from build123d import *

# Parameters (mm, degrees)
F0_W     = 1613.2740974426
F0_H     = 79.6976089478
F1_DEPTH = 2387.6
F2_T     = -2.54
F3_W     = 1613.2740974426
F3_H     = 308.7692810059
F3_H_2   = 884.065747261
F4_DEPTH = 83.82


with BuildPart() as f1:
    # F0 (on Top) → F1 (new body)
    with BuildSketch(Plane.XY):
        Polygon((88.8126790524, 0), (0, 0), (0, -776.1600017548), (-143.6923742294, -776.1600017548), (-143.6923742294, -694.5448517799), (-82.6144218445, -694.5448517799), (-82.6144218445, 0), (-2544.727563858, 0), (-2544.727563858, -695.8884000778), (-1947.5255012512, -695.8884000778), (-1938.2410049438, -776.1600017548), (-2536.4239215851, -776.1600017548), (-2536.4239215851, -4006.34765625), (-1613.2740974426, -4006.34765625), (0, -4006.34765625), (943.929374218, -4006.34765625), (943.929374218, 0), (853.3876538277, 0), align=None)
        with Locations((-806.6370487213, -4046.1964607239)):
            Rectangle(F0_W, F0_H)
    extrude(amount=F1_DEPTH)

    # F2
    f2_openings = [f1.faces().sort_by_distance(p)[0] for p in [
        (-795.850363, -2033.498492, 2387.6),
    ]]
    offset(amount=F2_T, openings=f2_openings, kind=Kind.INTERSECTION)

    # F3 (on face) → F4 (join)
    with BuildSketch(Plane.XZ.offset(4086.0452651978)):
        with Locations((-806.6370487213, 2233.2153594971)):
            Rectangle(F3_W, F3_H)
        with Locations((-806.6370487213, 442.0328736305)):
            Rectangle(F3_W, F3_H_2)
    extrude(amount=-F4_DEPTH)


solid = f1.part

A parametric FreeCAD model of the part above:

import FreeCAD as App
import Part
import Sketcher
Q = App.Units.Quantity


def faces_at(feature, points):
    """Names of the faces that lie closest to the given points."""
    faces = feature.Shape.Faces
    near = lambda p: min(range(len(faces)), key=lambda i: faces[i].distToShape(Part.Vertex(*p))[0])
    return sorted({f"Face{near(p) + 1}" for p in points})

doc = App.newDocument("Part")
body = doc.addObject("PartDesign::Body", "Body")

sketch1 = body.newObject("Sketcher::SketchObject", "Sketch")
sketch1.AttachmentSupport = (doc.getObject("XY_Plane"), [""])
sketch1.MapMode = "FlatFace"
sketch1.addGeometry([
    Part.LineSegment(App.Vector(0, 0, 0), App.Vector(0, -776.160002, 0)),
    Part.LineSegment(App.Vector(0, -776.160002, 0), App.Vector(-143.692374, -776.160002, 0)),
    Part.LineSegment(App.Vector(-143.692374, -776.160002, 0), App.Vector(-143.692374, -694.544852, 0)),
    Part.LineSegment(App.Vector(-143.692374, -694.544852, 0), App.Vector(-82.614422, -694.544852, 0)),
    Part.LineSegment(App.Vector(-82.614422, -694.544852, 0), App.Vector(-82.614422, 0, 0)),
    Part.LineSegment(App.Vector(-82.614422, 0, 0), App.Vector(-2544.727564, 0, 0)),
    Part.LineSegment(App.Vector(-2544.727564, 0, 0), App.Vector(-2544.727564, -695.8884, 0)),
    Part.LineSegment(App.Vector(-2544.727564, -695.8884, 0), App.Vector(-1947.525501, -695.8884, 0)),
    Part.LineSegment(App.Vector(-1947.525501, -695.8884, 0), App.Vector(-1938.241005, -776.160002, 0)),
    Part.LineSegment(App.Vector(-1938.241005, -776.160002, 0), App.Vector(-2536.423922, -776.160002, 0)),
    Part.LineSegment(App.Vector(-2536.423922, -776.160002, 0), App.Vector(-2536.423922, -4006.347656, 0)),
    Part.LineSegment(App.Vector(-2536.423922, -4006.347656, 0), App.Vector(-1613.274097, -4006.347656, 0)),
    Part.LineSegment(App.Vector(-1613.274097, -4006.347656, 0), App.Vector(-1613.274097, -4086.045265, 0)),
    Part.LineSegment(App.Vector(-1613.274097, -4086.045265, 0), App.Vector(0, -4086.045265, 0)),
    Part.LineSegment(App.Vector(0, -4086.045265, 0), App.Vector(0, -4006.347656, 0)),
    Part.LineSegment(App.Vector(0, -4006.347656, 0), App.Vector(943.929374, -4006.347656, 0)),
    Part.LineSegment(App.Vector(943.929374, -4006.347656, 0), App.Vector(943.929374, 0, 0)),
    Part.LineSegment(App.Vector(943.929374, 0, 0), App.Vector(0, 0, 0)),
], False)
sketch1.addConstraint([
    Sketcher.Constraint("Coincident", 0, 2, 1, 1),
    Sketcher.Constraint("Coincident", 1, 2, 2, 1),
    Sketcher.Constraint("Coincident", 2, 2, 3, 1),
    Sketcher.Constraint("Coincident", 3, 2, 4, 1),
    Sketcher.Constraint("Coincident", 4, 2, 5, 1),
    Sketcher.Constraint("Coincident", 5, 2, 6, 1),
    Sketcher.Constraint("Coincident", 6, 2, 7, 1),
    Sketcher.Constraint("Coincident", 7, 2, 8, 1),
    Sketcher.Constraint("Coincident", 8, 2, 9, 1),
    Sketcher.Constraint("Coincident", 9, 2, 10, 1),
    Sketcher.Constraint("Coincident", 10, 2, 11, 1),
    Sketcher.Constraint("Coincident", 11, 2, 12, 1),
    Sketcher.Constraint("Coincident", 12, 2, 13, 1),
    Sketcher.Constraint("Coincident", 13, 2, 14, 1),
    Sketcher.Constraint("Coincident", 14, 2, 15, 1),
    Sketcher.Constraint("Coincident", 15, 2, 16, 1),
    Sketcher.Constraint("Coincident", 16, 2, 17, 1),
    Sketcher.Constraint("Coincident", 17, 2, 0, 1),
    Sketcher.Constraint("Vertical", 0),
    Sketcher.Constraint("Horizontal", 1),
    Sketcher.Constraint("Vertical", 2),
    Sketcher.Constraint("Horizontal", 3),
    Sketcher.Constraint("Vertical", 4),
    Sketcher.Constraint("Horizontal", 5),
    Sketcher.Constraint("Vertical", 6),
    Sketcher.Constraint("Horizontal", 7),
    Sketcher.Constraint("Horizontal", 9),
    Sketcher.Constraint("Vertical", 10),
    Sketcher.Constraint("Horizontal", 11),
    Sketcher.Constraint("Vertical", 12),
    Sketcher.Constraint("Horizontal", 13),
    Sketcher.Constraint("Vertical", 14),
    Sketcher.Constraint("Horizontal", 15),
    Sketcher.Constraint("Vertical", 16),
    Sketcher.Constraint("Horizontal", 17),
    Sketcher.Constraint("Coincident", 17, 2, -1, 1),
    Sketcher.Constraint("PointOnObject", 4, 2, -1),
    Sketcher.Constraint("PointOnObject", 13, 2, -2),
    Sketcher.Constraint("Horizontal", 1, 2, 8, 2),
    Sketcher.Constraint("Horizontal", 11, 2, 14, 2),
    Sketcher.Constraint("DistanceY", 0, 2, 0, 1, 776.160002),
    Sketcher.Constraint("DistanceY", 6, 2, 6, 1, 695.8884),
    Sketcher.Constraint("DistanceY", 2, 1, 2, 2, 81.61515),
    Sketcher.Constraint("DistanceY", 12, 2, 12, 1, 79.697609),
    Sketcher.Constraint("DistanceX", 7, 2, -1, 1, 1947.525501),
    Sketcher.Constraint("DistanceX", 1, 2, 1, 1, 143.692374),
    Sketcher.Constraint("DistanceX", 3, 1, 3, 2, 61.077952),
    Sketcher.Constraint("DistanceX", 5, 2, 5, 1, 2462.113142),
    Sketcher.Constraint("DistanceX", 9, 2, 9, 1, 598.182917),
    Sketcher.Constraint("DistanceX", 11, 1, 11, 2, 923.149824),
    Sketcher.Constraint("DistanceX", 13, 1, 13, 2, 1613.274097),
    Sketcher.Constraint("DistanceX", 15, 1, 15, 2, 943.929374),
    Sketcher.Constraint("DistanceY", 10, 2, 10, 1, 3230.187654),
])
pad1 = body.newObject("PartDesign::Pad", "Pad")
pad1.Profile = sketch1
pad1.Length = Q("94 in")
doc.recompute()

thickness = body.newObject("PartDesign::Thickness", "Thickness")
thickness.Base = (pad1, faces_at(pad1, [(-800.399, -2043.023, 2387.6)]))
thickness.Value = Q("0.1 in")
thickness.Reversed = True
thickness.Join = "Intersection"

sketch2 = body.newObject("Sketcher::SketchObject", "Sketch001")
sketch2.AttachmentSupport = (doc.getObject("XZ_Plane"), [""])
sketch2.MapMode = "FlatFace"
sketch2.AttachmentOffset = App.Placement(App.Vector(0, 0, 4086.045265), App.Rotation())
sketch2.addGeometry([
    Part.LineSegment(App.Vector(-1613.274097, 2387.6, 0), App.Vector(-1613.274097, 2078.830719, 0)),
    Part.LineSegment(App.Vector(-1613.274097, 2078.830719, 0), App.Vector(0, 2078.830719, 0)),
    Part.LineSegment(App.Vector(0, 2078.830719, 0), App.Vector(0, 2387.6, 0)),
    Part.LineSegment(App.Vector(0, 2387.6, 0), App.Vector(-1613.274097, 2387.6, 0)),
    Part.LineSegment(App.Vector(-1613.274097, 884.065747, 0), App.Vector(-1613.274097, 0, 0)),
    Part.LineSegment(App.Vector(-1613.274097, 0, 0), App.Vector(0, 0, 0)),
    Part.LineSegment(App.Vector(0, 0, 0), App.Vector(0, 884.065747, 0)),
    Part.LineSegment(App.Vector(0, 884.065747, 0), App.Vector(-1613.274097, 884.065747, 0)),
], False)
sketch2.addConstraint([
    Sketcher.Constraint("Coincident", 0, 2, 1, 1),
    Sketcher.Constraint("Coincident", 1, 2, 2, 1),
    Sketcher.Constraint("Coincident", 2, 2, 3, 1),
    Sketcher.Constraint("Coincident", 3, 2, 0, 1),
    Sketcher.Constraint("Coincident", 4, 2, 5, 1),
    Sketcher.Constraint("Coincident", 5, 2, 6, 1),
    Sketcher.Constraint("Coincident", 6, 2, 7, 1),
    Sketcher.Constraint("Coincident", 7, 2, 4, 1),
    Sketcher.Constraint("Vertical", 0),
    Sketcher.Constraint("Horizontal", 1),
    Sketcher.Constraint("Vertical", 2),
    Sketcher.Constraint("Horizontal", 3),
    Sketcher.Constraint("Vertical", 4),
    Sketcher.Constraint("Horizontal", 5),
    Sketcher.Constraint("Vertical", 6),
    Sketcher.Constraint("Horizontal", 7),
    Sketcher.Constraint("Coincident", 5, 2, -1, 1),
    Sketcher.Constraint("PointOnObject", 1, 2, -2),
    Sketcher.Constraint("Vertical", 3, 2, 4, 2),
    Sketcher.Constraint("DistanceY", -1, 1, 2, 2, Q("94 in")),
    Sketcher.Constraint("DistanceY", 0, 2, 0, 1, 308.769281),
    Sketcher.Constraint("DistanceX", 1, 1, 1, 2, 1613.274097),
    Sketcher.Constraint("DistanceY", 4, 2, 4, 1, 884.065747),
])
pad2 = body.newObject("PartDesign::Pad", "Pad001")
pad2.Profile = sketch2
pad2.Length = Q("3.3 in")
pad2.Reversed = True

doc.recompute()
